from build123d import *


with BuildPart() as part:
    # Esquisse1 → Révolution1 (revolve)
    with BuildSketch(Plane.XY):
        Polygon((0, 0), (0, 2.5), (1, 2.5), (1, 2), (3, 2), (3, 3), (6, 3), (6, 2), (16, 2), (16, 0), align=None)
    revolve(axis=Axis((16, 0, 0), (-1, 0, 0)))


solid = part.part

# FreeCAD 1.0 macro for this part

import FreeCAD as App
import Part
import Sketcher

V = App.Vector


def add_polygon(sketch, points):
    """Adds a closed chain of lines whose ends are joined by coincident constraints."""
    first, n = sketch.GeometryCount, len(points)
    for a, b in zip(points, points[1:] + points[:1]):
        sketch.addGeometry(Part.LineSegment(App.Vector(*a, 0), App.Vector(*b, 0)), False)
    for i in range(n):
        sketch.addConstraint(Sketcher.Constraint("Coincident", first + i, 2, first + (i + 1) % n, 1))

doc = App.newDocument("Part")
body = doc.addObject("PartDesign::Body", "Body")

# Sketch on XY plane
sketch1 = body.newObject("Sketcher::SketchObject", "Sketch")
sketch1.AttachmentSupport = (doc.getObject("XY_Plane"), [""])
sketch1.MapMode = "FlatFace"
add_polygon(sketch1, [(0, 2.5), (0, 0), (16, 0), (16, 2), (6, 2), (6, 3), (3, 3), (3, 2), (1, 2), (1, 2.5)])  # lines 0-9
sketch1.addConstraint(Sketcher.Constraint("Vertical", 0))
sketch1.addConstraint(Sketcher.Constraint("Horizontal", 1))
sketch1.addConstraint(Sketcher.Constraint("Vertical", 2))
sketch1.addConstraint(Sketcher.Constraint("Horizontal", 3))
sketch1.addConstraint(Sketcher.Constraint("Vertical", 4))
sketch1.addConstraint(Sketcher.Constraint("Horizontal", 5))
sketch1.addConstraint(Sketcher.Constraint("Vertical", 6))
sketch1.addConstraint(Sketcher.Constraint("Horizontal", 7))
sketch1.addConstraint(Sketcher.Constraint("Vertical", 8))
sketch1.addConstraint(Sketcher.Constraint("Horizontal", 9))
sketch1.addConstraint(Sketcher.Constraint("Coincident", 0, 2, -1, 1))
sketch1.addConstraint(Sketcher.Constraint("Horizontal", 3, 2, 6, 2))
sketch1.addConstraint(Sketcher.Constraint("Equal", 7, 2))
sketch1.addConstraint(Sketcher.Constraint("Equal", 9, 4))
sketch1.addConstraint(Sketcher.Constraint("DistanceX", 1, 1, 1, 2, 16.0))
sketch1.addConstraint(Sketcher.Constraint("DistanceX", 3, 2, 3, 1, 10.0))
sketch1.addConstraint(Sketcher.Constraint("DistanceX", 5, 2, 5, 1, 3.0))
sketch1.addConstraint(Sketcher.Constraint("DistanceX", 7, 2, 7, 1, 2.0))
sketch1.addConstraint(Sketcher.Constraint("DistanceY", 0, 2, 0, 1, 2.5))
revolution = body.newObject("PartDesign::Revolution", "Revolution")
revolution.Profile = sketch1
revolution.ReferenceAxis = (sketch1, ["H_Axis"])
revolution.Angle = 360

doc.recompute()
